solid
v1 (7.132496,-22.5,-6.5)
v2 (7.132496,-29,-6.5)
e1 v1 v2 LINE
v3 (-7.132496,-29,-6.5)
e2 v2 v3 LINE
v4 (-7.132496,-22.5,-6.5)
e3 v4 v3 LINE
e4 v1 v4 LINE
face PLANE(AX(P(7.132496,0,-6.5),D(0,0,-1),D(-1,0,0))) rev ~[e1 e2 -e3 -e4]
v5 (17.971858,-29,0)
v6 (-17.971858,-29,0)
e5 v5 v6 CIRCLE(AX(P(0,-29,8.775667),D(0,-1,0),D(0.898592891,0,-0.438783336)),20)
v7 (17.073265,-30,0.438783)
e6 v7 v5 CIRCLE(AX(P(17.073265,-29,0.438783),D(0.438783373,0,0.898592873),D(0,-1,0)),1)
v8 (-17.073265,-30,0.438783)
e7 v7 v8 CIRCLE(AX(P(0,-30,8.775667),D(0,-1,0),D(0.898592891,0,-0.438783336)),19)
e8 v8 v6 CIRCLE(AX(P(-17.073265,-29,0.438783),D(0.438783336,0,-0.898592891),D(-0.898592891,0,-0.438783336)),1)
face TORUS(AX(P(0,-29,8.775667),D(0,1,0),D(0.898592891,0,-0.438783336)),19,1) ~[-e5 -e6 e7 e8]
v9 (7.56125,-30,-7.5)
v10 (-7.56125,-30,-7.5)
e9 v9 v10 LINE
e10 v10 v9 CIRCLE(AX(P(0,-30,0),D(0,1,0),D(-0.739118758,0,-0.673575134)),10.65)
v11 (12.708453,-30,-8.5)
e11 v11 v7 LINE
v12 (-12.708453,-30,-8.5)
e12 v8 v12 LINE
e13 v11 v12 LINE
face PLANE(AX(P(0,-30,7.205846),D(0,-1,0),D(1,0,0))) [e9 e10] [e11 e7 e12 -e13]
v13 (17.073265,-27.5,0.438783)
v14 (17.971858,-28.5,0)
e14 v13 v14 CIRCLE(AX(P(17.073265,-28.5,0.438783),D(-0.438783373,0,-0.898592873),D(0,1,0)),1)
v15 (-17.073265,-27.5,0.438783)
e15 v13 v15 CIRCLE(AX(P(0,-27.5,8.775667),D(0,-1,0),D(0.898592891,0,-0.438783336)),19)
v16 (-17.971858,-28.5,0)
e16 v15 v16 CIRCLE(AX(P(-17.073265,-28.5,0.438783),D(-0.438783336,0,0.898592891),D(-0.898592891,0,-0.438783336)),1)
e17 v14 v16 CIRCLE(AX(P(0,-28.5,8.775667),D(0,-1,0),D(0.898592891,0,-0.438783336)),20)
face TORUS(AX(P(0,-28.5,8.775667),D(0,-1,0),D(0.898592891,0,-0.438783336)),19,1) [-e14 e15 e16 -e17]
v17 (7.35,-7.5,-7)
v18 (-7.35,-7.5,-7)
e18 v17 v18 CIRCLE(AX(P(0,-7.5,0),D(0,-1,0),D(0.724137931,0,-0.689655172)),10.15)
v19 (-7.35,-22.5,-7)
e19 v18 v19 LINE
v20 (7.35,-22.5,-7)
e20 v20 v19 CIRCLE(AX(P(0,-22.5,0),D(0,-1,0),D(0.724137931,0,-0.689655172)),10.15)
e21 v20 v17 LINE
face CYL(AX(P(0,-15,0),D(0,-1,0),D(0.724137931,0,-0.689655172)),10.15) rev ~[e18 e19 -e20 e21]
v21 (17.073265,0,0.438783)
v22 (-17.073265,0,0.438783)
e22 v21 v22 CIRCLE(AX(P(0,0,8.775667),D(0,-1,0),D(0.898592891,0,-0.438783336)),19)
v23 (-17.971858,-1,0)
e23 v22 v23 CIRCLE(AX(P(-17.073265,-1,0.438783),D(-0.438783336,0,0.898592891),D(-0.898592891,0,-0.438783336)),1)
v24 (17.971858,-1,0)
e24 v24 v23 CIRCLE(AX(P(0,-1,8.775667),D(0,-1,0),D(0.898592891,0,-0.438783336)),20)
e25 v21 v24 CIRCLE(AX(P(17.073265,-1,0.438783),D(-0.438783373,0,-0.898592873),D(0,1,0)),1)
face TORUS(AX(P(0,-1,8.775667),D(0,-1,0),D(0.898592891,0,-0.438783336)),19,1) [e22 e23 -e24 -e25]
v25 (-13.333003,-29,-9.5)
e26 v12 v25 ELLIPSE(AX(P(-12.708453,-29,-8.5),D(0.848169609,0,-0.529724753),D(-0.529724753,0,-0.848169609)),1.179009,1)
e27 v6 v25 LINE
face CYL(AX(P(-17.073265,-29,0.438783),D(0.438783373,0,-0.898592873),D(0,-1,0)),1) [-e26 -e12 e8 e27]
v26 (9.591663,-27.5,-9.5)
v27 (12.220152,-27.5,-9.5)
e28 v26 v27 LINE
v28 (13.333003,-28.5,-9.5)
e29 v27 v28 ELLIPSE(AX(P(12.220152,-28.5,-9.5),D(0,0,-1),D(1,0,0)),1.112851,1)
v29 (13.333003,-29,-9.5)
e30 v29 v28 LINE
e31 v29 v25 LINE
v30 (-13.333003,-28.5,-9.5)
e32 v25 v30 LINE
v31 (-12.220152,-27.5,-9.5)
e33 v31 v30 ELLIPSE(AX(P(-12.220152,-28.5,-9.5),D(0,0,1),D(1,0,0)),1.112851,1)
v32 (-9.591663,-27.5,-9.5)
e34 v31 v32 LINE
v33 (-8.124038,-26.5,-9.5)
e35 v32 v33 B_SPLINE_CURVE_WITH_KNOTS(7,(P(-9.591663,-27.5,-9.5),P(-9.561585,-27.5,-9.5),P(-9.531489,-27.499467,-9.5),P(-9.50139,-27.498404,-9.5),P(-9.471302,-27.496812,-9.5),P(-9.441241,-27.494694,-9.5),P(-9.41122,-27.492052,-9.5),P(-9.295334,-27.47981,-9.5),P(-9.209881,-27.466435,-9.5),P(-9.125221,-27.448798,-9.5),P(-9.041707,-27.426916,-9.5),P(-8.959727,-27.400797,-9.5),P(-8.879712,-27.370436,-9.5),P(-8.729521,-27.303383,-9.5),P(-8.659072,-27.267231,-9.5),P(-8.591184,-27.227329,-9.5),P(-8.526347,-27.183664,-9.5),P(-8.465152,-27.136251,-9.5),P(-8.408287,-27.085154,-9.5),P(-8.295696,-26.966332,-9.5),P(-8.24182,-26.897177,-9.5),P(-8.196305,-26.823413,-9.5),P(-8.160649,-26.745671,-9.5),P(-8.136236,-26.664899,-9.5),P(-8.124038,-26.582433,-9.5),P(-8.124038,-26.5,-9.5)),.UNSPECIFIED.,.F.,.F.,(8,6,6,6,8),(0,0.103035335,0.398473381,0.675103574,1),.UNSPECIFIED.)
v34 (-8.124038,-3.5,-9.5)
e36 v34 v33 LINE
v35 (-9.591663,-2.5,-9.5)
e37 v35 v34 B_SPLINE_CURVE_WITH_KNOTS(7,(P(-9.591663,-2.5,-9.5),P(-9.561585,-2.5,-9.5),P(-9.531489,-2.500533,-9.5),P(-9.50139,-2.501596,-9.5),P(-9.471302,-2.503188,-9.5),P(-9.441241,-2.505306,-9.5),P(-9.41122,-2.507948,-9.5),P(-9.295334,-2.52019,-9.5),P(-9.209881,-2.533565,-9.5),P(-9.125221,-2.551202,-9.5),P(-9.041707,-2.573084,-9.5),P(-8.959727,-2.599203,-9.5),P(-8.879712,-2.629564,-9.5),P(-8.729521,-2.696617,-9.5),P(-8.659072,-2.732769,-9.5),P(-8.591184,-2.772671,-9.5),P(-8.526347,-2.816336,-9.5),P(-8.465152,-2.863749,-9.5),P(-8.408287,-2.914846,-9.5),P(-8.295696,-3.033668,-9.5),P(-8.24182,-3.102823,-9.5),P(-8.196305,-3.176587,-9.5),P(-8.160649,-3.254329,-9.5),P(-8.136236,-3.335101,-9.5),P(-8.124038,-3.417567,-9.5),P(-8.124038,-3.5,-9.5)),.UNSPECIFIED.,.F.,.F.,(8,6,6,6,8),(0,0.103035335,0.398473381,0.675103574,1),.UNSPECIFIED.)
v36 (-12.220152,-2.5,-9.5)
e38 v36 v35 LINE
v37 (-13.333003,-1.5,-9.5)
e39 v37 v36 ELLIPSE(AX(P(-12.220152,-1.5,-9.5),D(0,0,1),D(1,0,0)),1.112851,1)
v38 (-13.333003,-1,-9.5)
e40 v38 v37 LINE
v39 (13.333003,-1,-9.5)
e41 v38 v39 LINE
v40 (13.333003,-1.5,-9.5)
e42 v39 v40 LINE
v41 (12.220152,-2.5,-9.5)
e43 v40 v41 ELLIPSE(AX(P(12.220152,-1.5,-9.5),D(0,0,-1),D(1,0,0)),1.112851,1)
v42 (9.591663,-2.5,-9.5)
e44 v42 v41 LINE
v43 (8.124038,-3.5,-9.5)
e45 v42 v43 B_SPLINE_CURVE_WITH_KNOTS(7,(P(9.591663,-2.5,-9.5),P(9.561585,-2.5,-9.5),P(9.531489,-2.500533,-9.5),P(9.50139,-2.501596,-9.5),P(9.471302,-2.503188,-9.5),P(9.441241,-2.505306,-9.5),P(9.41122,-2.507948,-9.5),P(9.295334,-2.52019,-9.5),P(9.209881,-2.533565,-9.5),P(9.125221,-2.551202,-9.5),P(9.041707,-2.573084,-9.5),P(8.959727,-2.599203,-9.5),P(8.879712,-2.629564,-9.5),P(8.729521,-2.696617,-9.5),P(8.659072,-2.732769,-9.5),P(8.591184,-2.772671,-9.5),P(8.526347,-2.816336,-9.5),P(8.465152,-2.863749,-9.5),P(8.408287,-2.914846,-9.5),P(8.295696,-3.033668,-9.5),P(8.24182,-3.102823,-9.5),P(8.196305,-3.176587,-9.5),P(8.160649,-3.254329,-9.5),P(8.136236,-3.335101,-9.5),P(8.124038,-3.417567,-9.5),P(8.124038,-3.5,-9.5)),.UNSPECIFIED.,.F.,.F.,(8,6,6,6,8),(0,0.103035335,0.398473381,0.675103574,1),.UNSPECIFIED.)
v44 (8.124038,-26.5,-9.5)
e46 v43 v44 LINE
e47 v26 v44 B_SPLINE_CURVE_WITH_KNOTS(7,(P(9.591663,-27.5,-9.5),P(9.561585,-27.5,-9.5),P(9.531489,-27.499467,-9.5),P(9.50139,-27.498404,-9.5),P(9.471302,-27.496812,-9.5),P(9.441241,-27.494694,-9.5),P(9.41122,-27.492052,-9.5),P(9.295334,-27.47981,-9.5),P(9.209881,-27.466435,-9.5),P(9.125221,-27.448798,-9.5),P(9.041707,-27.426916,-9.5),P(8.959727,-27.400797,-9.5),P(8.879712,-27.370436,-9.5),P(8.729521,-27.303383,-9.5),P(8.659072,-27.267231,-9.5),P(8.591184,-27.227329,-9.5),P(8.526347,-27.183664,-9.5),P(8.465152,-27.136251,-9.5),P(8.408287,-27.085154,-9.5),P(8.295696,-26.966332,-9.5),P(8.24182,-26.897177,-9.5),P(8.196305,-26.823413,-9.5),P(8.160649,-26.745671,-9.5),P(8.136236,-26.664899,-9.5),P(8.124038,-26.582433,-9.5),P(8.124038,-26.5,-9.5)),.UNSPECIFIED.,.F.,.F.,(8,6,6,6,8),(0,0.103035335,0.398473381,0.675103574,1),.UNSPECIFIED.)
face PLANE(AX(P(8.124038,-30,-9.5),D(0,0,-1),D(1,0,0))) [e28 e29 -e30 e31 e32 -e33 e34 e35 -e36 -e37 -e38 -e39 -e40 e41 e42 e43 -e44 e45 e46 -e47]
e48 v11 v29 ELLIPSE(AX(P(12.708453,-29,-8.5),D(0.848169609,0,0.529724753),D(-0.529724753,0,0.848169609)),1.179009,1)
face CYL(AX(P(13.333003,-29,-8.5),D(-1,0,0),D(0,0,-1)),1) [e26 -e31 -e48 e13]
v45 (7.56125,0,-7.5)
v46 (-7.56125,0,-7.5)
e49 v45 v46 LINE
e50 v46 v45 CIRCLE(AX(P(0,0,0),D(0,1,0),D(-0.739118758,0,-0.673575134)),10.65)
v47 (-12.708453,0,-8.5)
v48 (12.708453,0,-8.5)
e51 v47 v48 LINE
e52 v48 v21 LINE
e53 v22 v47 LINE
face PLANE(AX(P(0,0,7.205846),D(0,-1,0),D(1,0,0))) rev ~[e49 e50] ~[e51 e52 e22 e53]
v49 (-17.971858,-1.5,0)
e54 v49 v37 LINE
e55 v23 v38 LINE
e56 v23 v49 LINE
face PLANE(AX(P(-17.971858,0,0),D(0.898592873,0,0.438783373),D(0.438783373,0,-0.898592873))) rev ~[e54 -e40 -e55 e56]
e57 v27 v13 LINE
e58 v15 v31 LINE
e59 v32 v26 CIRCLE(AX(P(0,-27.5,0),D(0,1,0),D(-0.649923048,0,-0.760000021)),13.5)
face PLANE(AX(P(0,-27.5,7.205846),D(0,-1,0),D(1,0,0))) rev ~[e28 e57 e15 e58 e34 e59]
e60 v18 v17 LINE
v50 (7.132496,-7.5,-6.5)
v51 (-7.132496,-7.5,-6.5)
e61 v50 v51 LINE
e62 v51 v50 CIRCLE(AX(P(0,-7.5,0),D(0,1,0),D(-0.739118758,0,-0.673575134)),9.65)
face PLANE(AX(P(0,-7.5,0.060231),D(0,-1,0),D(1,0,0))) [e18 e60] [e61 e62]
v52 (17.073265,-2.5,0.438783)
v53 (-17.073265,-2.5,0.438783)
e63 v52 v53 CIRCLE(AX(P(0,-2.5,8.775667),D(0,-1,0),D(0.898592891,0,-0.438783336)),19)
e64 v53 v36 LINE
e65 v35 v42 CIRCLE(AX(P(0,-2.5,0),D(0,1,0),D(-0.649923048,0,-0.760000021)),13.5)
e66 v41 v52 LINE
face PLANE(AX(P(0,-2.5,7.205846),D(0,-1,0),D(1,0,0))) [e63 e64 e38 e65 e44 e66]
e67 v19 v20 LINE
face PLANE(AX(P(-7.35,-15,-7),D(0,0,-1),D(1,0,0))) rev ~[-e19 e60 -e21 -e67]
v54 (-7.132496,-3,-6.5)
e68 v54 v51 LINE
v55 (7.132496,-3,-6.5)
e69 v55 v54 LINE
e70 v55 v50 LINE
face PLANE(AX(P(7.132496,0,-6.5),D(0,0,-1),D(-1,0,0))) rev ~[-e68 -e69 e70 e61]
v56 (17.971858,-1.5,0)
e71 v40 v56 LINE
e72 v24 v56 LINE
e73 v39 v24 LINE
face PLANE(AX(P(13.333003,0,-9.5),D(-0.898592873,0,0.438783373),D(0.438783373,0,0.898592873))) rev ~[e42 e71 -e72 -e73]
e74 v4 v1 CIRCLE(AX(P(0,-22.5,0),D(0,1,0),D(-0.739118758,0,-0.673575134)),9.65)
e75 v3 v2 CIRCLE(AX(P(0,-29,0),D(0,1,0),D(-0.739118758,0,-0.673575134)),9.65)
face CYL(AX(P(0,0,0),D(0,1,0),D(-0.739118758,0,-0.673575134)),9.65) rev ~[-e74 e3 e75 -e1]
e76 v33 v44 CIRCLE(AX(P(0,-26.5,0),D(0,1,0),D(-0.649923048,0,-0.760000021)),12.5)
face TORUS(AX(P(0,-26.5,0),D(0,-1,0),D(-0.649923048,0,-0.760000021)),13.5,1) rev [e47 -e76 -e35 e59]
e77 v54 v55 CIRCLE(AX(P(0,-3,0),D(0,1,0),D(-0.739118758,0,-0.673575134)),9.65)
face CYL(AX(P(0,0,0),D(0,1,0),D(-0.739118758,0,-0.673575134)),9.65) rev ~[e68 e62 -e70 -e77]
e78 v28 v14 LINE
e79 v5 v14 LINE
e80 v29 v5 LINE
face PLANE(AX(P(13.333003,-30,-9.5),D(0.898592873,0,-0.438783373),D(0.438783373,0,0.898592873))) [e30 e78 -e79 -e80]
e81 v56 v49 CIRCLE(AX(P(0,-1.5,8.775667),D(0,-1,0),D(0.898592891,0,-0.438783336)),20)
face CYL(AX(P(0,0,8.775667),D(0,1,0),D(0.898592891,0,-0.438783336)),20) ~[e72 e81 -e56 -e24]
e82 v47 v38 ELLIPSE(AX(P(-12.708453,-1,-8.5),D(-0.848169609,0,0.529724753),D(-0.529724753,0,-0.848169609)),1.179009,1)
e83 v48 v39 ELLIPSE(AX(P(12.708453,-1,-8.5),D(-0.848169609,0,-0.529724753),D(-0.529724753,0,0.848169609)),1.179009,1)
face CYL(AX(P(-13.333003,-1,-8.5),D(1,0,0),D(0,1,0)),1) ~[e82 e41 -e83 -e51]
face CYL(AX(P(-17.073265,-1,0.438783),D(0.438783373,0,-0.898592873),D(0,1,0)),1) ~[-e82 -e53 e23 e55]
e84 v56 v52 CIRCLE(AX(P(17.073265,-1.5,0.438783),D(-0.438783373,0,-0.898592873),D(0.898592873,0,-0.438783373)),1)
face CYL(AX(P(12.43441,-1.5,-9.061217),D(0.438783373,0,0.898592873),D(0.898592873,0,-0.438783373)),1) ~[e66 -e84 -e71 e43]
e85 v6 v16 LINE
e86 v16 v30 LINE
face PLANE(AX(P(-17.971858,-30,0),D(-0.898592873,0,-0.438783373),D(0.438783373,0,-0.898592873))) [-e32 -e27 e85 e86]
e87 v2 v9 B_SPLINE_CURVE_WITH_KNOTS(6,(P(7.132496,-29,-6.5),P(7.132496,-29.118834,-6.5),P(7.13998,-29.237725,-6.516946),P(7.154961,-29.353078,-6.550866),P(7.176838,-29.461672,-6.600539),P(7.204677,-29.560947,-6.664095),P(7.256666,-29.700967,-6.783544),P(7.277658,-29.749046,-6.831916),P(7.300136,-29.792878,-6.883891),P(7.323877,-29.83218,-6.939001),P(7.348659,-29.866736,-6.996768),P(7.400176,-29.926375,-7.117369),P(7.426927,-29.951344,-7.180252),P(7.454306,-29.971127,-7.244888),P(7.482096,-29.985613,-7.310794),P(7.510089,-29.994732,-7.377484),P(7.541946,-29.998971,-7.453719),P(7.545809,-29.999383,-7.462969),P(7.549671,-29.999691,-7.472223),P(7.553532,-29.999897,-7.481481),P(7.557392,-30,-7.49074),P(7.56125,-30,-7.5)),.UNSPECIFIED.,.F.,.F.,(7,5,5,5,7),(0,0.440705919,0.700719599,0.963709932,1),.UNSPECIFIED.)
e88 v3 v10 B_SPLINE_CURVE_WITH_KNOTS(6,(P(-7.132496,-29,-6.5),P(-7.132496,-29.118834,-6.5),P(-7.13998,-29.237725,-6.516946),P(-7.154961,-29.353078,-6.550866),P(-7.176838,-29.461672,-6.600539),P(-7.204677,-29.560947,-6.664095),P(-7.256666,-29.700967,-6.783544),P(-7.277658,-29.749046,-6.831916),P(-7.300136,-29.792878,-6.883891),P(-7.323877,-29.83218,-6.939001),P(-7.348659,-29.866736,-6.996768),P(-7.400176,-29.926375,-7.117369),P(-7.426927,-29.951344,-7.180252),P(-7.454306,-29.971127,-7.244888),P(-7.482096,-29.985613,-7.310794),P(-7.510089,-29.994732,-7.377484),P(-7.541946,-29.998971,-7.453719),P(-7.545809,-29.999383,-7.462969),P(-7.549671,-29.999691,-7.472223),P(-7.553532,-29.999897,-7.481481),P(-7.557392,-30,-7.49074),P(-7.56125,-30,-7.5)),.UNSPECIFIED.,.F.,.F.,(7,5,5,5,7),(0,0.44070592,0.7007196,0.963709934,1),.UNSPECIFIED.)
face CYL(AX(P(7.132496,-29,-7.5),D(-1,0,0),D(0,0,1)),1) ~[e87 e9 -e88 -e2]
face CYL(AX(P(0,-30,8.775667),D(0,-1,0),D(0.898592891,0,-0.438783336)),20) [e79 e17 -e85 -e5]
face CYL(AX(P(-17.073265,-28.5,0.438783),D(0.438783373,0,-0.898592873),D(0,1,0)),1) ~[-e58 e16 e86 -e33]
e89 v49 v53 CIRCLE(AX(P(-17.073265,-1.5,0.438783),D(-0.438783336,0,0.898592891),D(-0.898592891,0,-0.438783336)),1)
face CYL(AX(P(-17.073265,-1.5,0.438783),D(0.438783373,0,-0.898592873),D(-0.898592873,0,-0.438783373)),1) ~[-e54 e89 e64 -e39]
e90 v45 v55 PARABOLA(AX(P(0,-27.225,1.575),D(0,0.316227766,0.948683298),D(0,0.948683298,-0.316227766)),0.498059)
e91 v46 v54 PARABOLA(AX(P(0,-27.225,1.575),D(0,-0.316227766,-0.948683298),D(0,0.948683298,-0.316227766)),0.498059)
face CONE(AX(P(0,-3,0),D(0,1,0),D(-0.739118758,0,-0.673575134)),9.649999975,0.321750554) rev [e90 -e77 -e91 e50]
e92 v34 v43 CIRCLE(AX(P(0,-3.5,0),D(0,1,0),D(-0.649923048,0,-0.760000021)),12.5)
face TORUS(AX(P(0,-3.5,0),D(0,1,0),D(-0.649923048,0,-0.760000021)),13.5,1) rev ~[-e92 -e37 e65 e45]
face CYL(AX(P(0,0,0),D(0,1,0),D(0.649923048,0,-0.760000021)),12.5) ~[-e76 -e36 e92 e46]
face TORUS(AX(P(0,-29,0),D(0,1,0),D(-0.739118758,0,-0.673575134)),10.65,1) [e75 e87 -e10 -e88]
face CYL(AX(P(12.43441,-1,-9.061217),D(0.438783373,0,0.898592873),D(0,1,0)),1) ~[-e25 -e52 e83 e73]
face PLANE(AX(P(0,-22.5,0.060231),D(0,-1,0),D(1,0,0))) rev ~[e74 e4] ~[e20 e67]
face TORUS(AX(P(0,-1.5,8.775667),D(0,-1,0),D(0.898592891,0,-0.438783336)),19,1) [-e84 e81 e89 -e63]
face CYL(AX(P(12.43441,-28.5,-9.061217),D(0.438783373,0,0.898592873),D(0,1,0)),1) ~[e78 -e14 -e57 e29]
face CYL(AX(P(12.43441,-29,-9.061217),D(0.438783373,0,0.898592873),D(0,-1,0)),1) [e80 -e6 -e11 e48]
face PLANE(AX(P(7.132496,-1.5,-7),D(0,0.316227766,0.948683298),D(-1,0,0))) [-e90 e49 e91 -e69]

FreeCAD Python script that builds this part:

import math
import FreeCAD as App
import Part
import Sketcher


def edges_at(feature, points):
    """Names of the edges that pass closest to the given points."""
    edges = feature.Shape.Edges
    near = lambda p: min(range(len(edges)), key=lambda i: edges[i].distToShape(Part.Vertex(*p))[0])
    return sorted({f"Edge{near(p) + 1}" for p in points})

doc = App.newDocument("Part")
body = doc.addObject("PartDesign::Body", "Body")

# Sketch on XZ plane
sketch1 = body.newObject("Sketcher::SketchObject", "Sketch")
sketch1.AttachmentSupport = (doc.getObject("XZ_Plane"), [""])
sketch1.MapMode = "FlatFace"
sketch1.addGeometry([
    Part.LineSegment(App.Vector(-8, -10, 0), App.Vector(8, -10, 0)),
    Part.ArcOfCircle(Part.Circle(App.Vector(0, 0, 0), App.Vector(0, 0, 1), 12), math.radians(-49), math.radians(229)),
    Part.LineSegment(App.Vector(7, -6, 0), App.Vector(-7, -6, 0)),
    Part.ArcOfCircle(Part.Circle(App.Vector(0, 0, 0), App.Vector(0, 0, 1), 10), math.radians(-42), math.radians(222)),
], False)
sketch1.addConstraint([
    Sketcher.Constraint("Coincident", 0, 1, 1, 2),
    Sketcher.Constraint("Coincident", 1, 1, 0, 2),
    Sketcher.Constraint("Coincident", 2, 1, 3, 1),
    Sketcher.Constraint("Coincident", 3, 2, 2, 2),
    Sketcher.Constraint("Horizontal", 0),
    Sketcher.Constraint("Horizontal", 2),
    Sketcher.Constraint("Coincident", 1, 3, -1, 1),
    Sketcher.Constraint("Coincident", 3, 3, -1, 1),
    Sketcher.Constraint("Radius", 1, 12.5),
    Sketcher.Constraint("Radius", 3, 9.65),
    Sketcher.Constraint("DistanceY", 1, 1, 2, 1, 3.0),
    Sketcher.Constraint("DistanceY", 0, 1, -1, 1, 9.5),
])
pad1 = body.newObject("PartDesign::Pad", "Pad")
pad1.Profile = sketch1
pad1.Length = 30

# Sketch on XZ plane
sketch2 = body.newObject("Sketcher::SketchObject", "Sketch001")
sketch2.AttachmentSupport = (doc.getObject("XZ_Plane"), [""])
sketch2.MapMode = "FlatFace"
sketch2.addGeometry([
    Part.ArcOfCircle(Part.Circle(App.Vector(0, 0, 0), App.Vector(0, 0, 1), 12), math.radians(-49), math.radians(229)),  # 0
    Part.LineSegment(App.Vector(8, -10, 0), App.Vector(13, -10, 0)),  # 1
    Part.LineSegment(App.Vector(13, -10, 0), App.Vector(18, 0, 0)),  # 2
    Part.ArcOfCircle(Part.Circle(App.Vector(0, 9, 0), App.Vector(0, 0, 1), 20), math.radians(-26), math.radians(206)),  # 3
    Part.LineSegment(App.Vector(-18, 0, 0), App.Vector(-13, -10, 0)),  # 4
    Part.LineSegment(App.Vector(-13, -10, 0), App.Vector(-8, -10, 0)),  # 5
], False)
sketch2.addConstraint([
    Sketcher.Constraint("Coincident", 0, 1, 1, 1),
    Sketcher.Constraint("Coincident", 1, 2, 2, 1),
    Sketcher.Constraint("Tangent", 2, 2, 3, 1),
    Sketcher.Constraint("Tangent", 3, 2, 4, 1),
    Sketcher.Constraint("Coincident", 4, 2, 5, 1),
    Sketcher.Constraint("Coincident", 5, 2, 0, 2),
    Sketcher.Constraint("Horizontal", 1),
    Sketcher.Constraint("Horizontal", 5),
    Sketcher.Constraint("Coincident", 0, 3, -1, 1),
    Sketcher.Constraint("Symmetric", 2, 2, 3, 2, -1, 1),
    Sketcher.Constraint("Symmetric", 1, 2, 4, 2, -2),
    Sketcher.Constraint("Radius", 3, 20.0),
    Sketcher.Constraint("Radius", 0, 12.5),
    Sketcher.Constraint("DistanceY", 0, 1, -1, 1, 9.5),
    Sketcher.Constraint("DistanceX", 1, 1, 1, 2, 5.208965),
])
pad2 = body.newObject("PartDesign::Pad", "Pad001")
pad2.Profile = sketch2
pad2.Length = 2.5

# Sketch on XZ plane
sketch3 = body.newObject("Sketcher::SketchObject", "Sketch002")
sketch3.AttachmentSupport = (doc.getObject("XZ_Plane"), [""])
sketch3.MapMode = "FlatFace"
sketch3.AttachmentOffset = App.Placement(App.Vector(0, 0, 30), App.Rotation())
sketch3.addGeometry([
    Part.LineSegment(App.Vector(13, -10, 0), App.Vector(18, 0, 0)),  # 0
    Part.ArcOfCircle(Part.Circle(App.Vector(0, 9, 0), App.Vector(0, 0, 1), 20), math.radians(-26), math.radians(206)),  # 1
    Part.LineSegment(App.Vector(-18, 0, 0), App.Vector(-13, -10, 0)),  # 2
    Part.LineSegment(App.Vector(-13, -10, 0), App.Vector(-8, -10, 0)),  # 3
    Part.ArcOfCircle(Part.Circle(App.Vector(0, 0, 0), App.Vector(0, 0, 1), 12), math.radians(-49), math.radians(229)),  # 4
    Part.LineSegment(App.Vector(8, -10, 0), App.Vector(13, -10, 0)),  # 5
], False)
sketch3.addConstraint([
    Sketcher.Constraint("Tangent", 0, 2, 1, 1),
    Sketcher.Constraint("Tangent", 1, 2, 2, 1),
    Sketcher.Constraint("Coincident", 2, 2, 3, 1),
    Sketcher.Constraint("Coincident", 3, 2, 4, 2),
    Sketcher.Constraint("Coincident", 4, 1, 5, 1),
    Sketcher.Constraint("Coincident", 5, 2, 0, 1),
    Sketcher.Constraint("Horizontal", 3),
    Sketcher.Constraint("Horizontal", 5),
    Sketcher.Constraint("Coincident", 4, 3, -1, 1),
    Sketcher.Constraint("Symmetric", 0, 2, 1, 2, -1, 1),
    Sketcher.Constraint("Symmetric", 2, 2, 5, 2, -2),
    Sketcher.Constraint("Radius", 1, 20.0),
    Sketcher.Constraint("Radius", 4, 12.5),
    Sketcher.Constraint("DistanceY", 2, 2, -1, 1, 9.5),
    Sketcher.Constraint("DistanceX", 3, 1, 3, 2, 5.208965),
])
pad3 = body.newObject("PartDesign::Pad", "Pad002")
pad3.Profile = sketch3
pad3.Length = 2.5
pad3.Reversed = True
doc.recompute()

chamfer = body.newObject("PartDesign::Chamfer", "Chamfer")
chamfer.Base = (pad3, edges_at(pad3, [(0, 0, 9.65), (0, 0, -6.5)]))
chamfer.ChamferType = "Two distances"
chamfer.Size = 1
chamfer.Size2 = 3
doc.recompute()

fillet = body.newObject("PartDesign::Fillet", "Fillet")
fillet.Base = (chamfer, edges_at(chamfer, [
    (0, -2.5, 12.5),
    (0, -27.5, 12.5),
    (0, 0, 28.776),
    (0, -30, 28.776),
    (0, 0, -9.5),
    (0, -30, -9.5),
    (0, -30, 9.65),
    (0, -30, -6.5),
]))
fillet.Radius = 1
doc.recompute()

fillet2 = body.newObject("PartDesign::Fillet", "Fillet001")
fillet2.Base = (fillet, edges_at(fillet, [(0, -27.5, 28.776), (0, -2.5, 28.776)]))
fillet2.Radius = 1

# Sketch on XZ plane
sketch4 = body.newObject("Sketcher::SketchObject", "Sketch003")
sketch4.AttachmentSupport = (doc.getObject("XZ_Plane"), [""])
sketch4.MapMode = "FlatFace"
sketch4.AttachmentOffset = App.Placement(App.Vector(0, 0, 15), App.Rotation())
sketch4.addGeometry([
    Part.ArcOfCircle(Part.Circle(App.Vector(0, 0, 0), App.Vector(0, 0, 1), 10), math.radians(-44), math.radians(224)),
    Part.LineSegment(App.Vector(-7, -7, 0), App.Vector(7, -7, 0)),
    Part.LineSegment(App.Vector(7, -6, 0), App.Vector(-7, -6, 0)),
    Part.ArcOfCircle(Part.Circle(App.Vector(0, 0, 0), App.Vector(0, 0, 1), 10), math.radians(-42), math.radians(222)),
], False)
sketch4.addConstraint([
    Sketcher.Constraint("Coincident", 0, 1, 1, 2),
    Sketcher.Constraint("Coincident", 1, 1, 0, 2),
    Sketcher.Constraint("Coincident", 2, 1, 3, 1),
    Sketcher.Constraint("Coincident", 3, 2, 2, 2),
    Sketcher.Constraint("Horizontal", 1),
    Sketcher.Constraint("Horizontal", 2),
    Sketcher.Constraint("Coincident", 0, 3, -1, 1),
    Sketcher.Constraint("Coincident", 3, 3, -1, 1),
    Sketcher.Constraint("Radius", 0, 10.15),
    Sketcher.Constraint("Radius", 3, 9.65),
    Sketcher.Constraint("DistanceX", 1, 1, 1, 2, 14.7),
    Sketcher.Constraint("DistanceY", 2, 1, -1, 1, 6.5),
])
pocket1 = body.newObject("PartDesign::Pocket", "Pocket")
pocket1.Profile = sketch4
pocket1.Length = 15
pocket1.Midplane = True

doc.recompute()
